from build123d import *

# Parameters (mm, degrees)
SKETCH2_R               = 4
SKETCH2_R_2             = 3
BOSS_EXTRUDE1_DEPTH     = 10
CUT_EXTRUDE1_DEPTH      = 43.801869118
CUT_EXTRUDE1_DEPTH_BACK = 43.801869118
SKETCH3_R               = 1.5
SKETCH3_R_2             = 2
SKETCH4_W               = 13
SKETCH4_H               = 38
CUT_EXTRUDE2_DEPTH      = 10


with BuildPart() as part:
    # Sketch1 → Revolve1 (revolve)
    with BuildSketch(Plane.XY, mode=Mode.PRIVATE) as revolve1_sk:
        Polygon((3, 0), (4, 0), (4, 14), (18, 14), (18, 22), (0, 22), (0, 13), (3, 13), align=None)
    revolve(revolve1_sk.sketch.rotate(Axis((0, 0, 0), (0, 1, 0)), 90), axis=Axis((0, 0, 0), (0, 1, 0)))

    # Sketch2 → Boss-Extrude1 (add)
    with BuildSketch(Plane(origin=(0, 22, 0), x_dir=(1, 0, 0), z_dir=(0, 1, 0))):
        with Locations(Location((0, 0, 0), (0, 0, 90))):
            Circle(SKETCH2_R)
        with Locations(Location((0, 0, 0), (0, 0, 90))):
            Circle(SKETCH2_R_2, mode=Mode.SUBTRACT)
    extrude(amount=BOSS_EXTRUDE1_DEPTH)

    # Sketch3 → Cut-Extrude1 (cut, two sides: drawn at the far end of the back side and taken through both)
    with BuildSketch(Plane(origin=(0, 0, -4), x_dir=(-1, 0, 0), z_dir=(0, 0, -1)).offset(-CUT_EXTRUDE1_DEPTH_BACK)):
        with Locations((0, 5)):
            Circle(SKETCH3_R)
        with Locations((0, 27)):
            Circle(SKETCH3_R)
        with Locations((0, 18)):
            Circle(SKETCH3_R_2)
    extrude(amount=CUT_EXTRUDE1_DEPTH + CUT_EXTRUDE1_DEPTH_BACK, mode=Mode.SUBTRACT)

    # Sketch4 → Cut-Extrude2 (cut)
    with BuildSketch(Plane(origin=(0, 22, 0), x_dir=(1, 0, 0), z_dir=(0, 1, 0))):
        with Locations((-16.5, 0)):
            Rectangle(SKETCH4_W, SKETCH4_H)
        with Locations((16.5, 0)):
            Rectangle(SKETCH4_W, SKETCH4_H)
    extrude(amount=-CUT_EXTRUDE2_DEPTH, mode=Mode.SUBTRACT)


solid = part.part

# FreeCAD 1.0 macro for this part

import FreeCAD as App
import Part
import Sketcher
from FreeCAD import Vector


def add_polygon(sketch, points):
    """Adds a closed chain of lines whose ends are joined by coincident constraints."""
    first, n = sketch.GeometryCount, len(points)
    for a, b in zip(points, points[1:] + points[:1]):
        sketch.addGeometry(Part.LineSegment(App.Vector(*a, 0), App.Vector(*b, 0)), False)
    for i in range(n):
        sketch.addConstraint(Sketcher.Constraint("Coincident", first + i, 2, first + (i + 1) % n, 1))

doc = App.newDocument("Part")
body = doc.addObject("PartDesign::Body", "Body")

sketch1 = body.newObject("Sketcher::SketchObject", "Sketch")
sketch1.AttachmentSupport = (doc.getObject("XY_Plane"), [""])
sketch1.MapMode = "FlatFace"
add_polygon(sketch1, [(3, 0), (4, 0), (4, 14), (18, 14), (18, 22), (0, 22), (0, 13), (3, 13)])
sketch1.addConstraint(Sketcher.Constraint("Horizontal", 0))
sketch1.addConstraint(Sketcher.Constraint("Vertical", 1))
sketch1.addConstraint(Sketcher.Constraint("Horizontal", 2))
sketch1.addConstraint(Sketcher.Constraint("Vertical", 3))
sketch1.addConstraint(Sketcher.Constraint("Horizontal", 4))
sketch1.addConstraint(Sketcher.Constraint("Vertical", 5))
sketch1.addConstraint(Sketcher.Constraint("Horizontal", 6))
sketch1.addConstraint(Sketcher.Constraint("Vertical", 7))
sketch1.addConstraint(Sketcher.Constraint("PointOnObject", 0, 2, -1))
sketch1.addConstraint(Sketcher.Constraint("PointOnObject", 4, 2, -2))
sketch1.addConstraint(Sketcher.Constraint("Equal", 2, 1))
sketch1.addConstraint(Sketcher.Constraint("DistanceX", 0, 1, 0, 2, 1.0))
sketch1.addConstraint(Sketcher.Constraint("DistanceX", 2, 1, 2, 2, 14.0))
sketch1.addConstraint(Sketcher.Constraint("DistanceX", 4, 2, 4, 1, 18.0))
sketch1.addConstraint(Sketcher.Constraint("DistanceY", 3, 1, 3, 2, 8.0))
sketch1.addConstraint(Sketcher.Constraint("DistanceY", 5, 2, 5, 1, 9.0))
revolution = body.newObject("PartDesign::Revolution", "Revolution")
revolution.Profile = sketch1
revolution.ReferenceAxis = (sketch1, ["V_Axis"])
revolution.Angle = 360

sketch2 = body.newObject("Sketcher::SketchObject", "Sketch001")
sketch2.AttachmentSupport = (doc.getObject("XZ_Plane"), [""])
sketch2.MapMode = "FlatFace"
sketch2.AttachmentOffset = App.Placement(Vector(0, 0, -22), App.Rotation())
sketch2.addGeometry(Part.Circle(Vector(0, 0, 0), Vector(0, 0, 1), 4), False)
sketch2.addGeometry(Part.Circle(Vector(0, 0, 0), Vector(0, 0, 1), 3), False)
sketch2.addConstraint(Sketcher.Constraint("Coincident", 0, 3, -1, 1))
sketch2.addConstraint(Sketcher.Constraint("Coincident", 1, 3, -1, 1))
sketch2.addConstraint(Sketcher.Constraint("Diameter", 0, 8.0))
sketch2.addConstraint(Sketcher.Constraint("Diameter", 1, 6.0))
pad1 = body.newObject("PartDesign::Pad", "Pad")
pad1.Profile = sketch2
pad1.Length = 10
pad1.Reversed = True

sketch3 = body.newObject("Sketcher::SketchObject", "Sketch002")
sketch3.AttachmentSupport = (doc.getObject("XY_Plane"), [""])
sketch3.MapMode = "FlatFace"
sketch3.AttachmentOffset = App.Placement(Vector(0, 0, -4), App.Rotation())
sketch3.addGeometry(Part.Circle(Vector(0, 5, 0), Vector(0, 0, 1), 1.5), False)
sketch3.addGeometry(Part.Circle(Vector(0, 27, 0), Vector(0, 0, 1), 1.5), False)
sketch3.addGeometry(Part.Circle(Vector(0, 18, 0), Vector(0, 0, 1), 2), False)
sketch3.addConstraint(Sketcher.Constraint("Equal", 0, 1))
sketch3.addConstraint(Sketcher.Constraint("PointOnObject", 0, 3, -2))
sketch3.addConstraint(Sketcher.Constraint("PointOnObject", 1, 3, -2))
sketch3.addConstraint(Sketcher.Constraint("PointOnObject", 2, 3, -2))
sketch3.addConstraint(Sketcher.Constraint("Diameter", 0, 3.0))
sketch3.addConstraint(Sketcher.Constraint("Diameter", 2, 4.0))
sketch3.addConstraint(Sketcher.Constraint("DistanceY", -1, 1, 0, 3, 5.0))
sketch3.addConstraint(Sketcher.Constraint("DistanceY", -1, 1, 1, 3, 27.0))
sketch3.addConstraint(Sketcher.Constraint("DistanceY", -1, 1, 2, 3, 18.0))
pocket1 = body.newObject("PartDesign::Pocket", "Pocket")
pocket1.Profile = sketch3
pocket1.Type = "ThroughAll"
pocket1.Midplane = True

sketch4 = body.newObject("Sketcher::SketchObject", "Sketch003")
sketch4.AttachmentSupport = (doc.getObject("XZ_Plane"), [""])
sketch4.MapMode = "FlatFace"
sketch4.AttachmentOffset = App.Placement(Vector(0, 0, -22), App.Rotation())
add_polygon(sketch4, [(-23, -19), (-23, 19), (-10, 19), (-10, -19)])
add_polygon(sketch4, [(10, -19), (10, 19), (23, 19), (23, -19)])
sketch4.addConstraint(Sketcher.Constraint("Vertical", 0))
sketch4.addConstraint(Sketcher.Constraint("Horizontal", 1))
sketch4.addConstraint(Sketcher.Constraint("Vertical", 2))
sketch4.addConstraint(Sketcher.Constraint("Horizontal", 3))
sketch4.addConstraint(Sketcher.Constraint("Vertical", 4))
sketch4.addConstraint(Sketcher.Constraint("Horizontal", 5))
sketch4.addConstraint(Sketcher.Constraint("Vertical", 6))
sketch4.addConstraint(Sketcher.Constraint("Horizontal", 7))
sketch4.addConstraint(Sketcher.Constraint("Symmetric", 2, 2, 4, 2, -1, 1))
sketch4.addConstraint(Sketcher.Constraint("Symmetric", 0, 2, 6, 2, -1, 1))
sketch4.addConstraint(Sketcher.Constraint("Horizontal", 1, 2, 4, 2))
sketch4.addConstraint(Sketcher.Constraint("DistanceX", 1, 1, 1, 2, 13.0))
sketch4.addConstraint(Sketcher.Constraint("DistanceY", 0, 1, 0, 2, 38.0))
sketch4.addConstraint(Sketcher.Constraint("DistanceX", 0, 2, -1, 1, 23.0))
pocket2 = body.newObject("PartDesign::Pocket", "Pocket001")
pocket2.Profile = sketch4
pocket2.Length = 10
pocket2.Reversed = True

doc.recompute()
